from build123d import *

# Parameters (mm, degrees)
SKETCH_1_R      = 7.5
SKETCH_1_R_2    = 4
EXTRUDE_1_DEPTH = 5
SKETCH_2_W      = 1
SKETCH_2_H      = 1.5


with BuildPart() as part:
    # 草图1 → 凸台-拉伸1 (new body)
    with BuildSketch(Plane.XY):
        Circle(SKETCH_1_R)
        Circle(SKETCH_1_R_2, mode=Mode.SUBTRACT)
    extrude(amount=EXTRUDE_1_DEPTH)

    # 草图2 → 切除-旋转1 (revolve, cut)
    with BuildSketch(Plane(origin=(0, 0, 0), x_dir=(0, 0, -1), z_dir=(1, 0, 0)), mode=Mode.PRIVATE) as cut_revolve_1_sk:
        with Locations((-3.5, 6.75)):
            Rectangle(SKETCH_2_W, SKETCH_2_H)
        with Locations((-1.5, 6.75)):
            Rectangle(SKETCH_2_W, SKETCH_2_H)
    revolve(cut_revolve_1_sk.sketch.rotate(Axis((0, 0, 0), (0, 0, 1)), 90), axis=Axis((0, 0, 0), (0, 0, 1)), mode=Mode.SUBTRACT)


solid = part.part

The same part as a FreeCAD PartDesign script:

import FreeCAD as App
import Part
import Sketcher
from FreeCAD import Vector
Q = App.Units.Quantity

doc = App.newDocument("Part")
body = doc.addObject("PartDesign::Body", "Body")

# Sketch on XY plane
sketch1 = doc.addObject("Sketcher::SketchObject", "Sketch")
body.addObject(sketch1)
sketch1.AttachmentSupport = (doc.XY_Plane, [""])
sketch1.MapMode = "FlatFace"
sketch1.addGeometry([
    Part.Circle(Vector(0, 0, 0), Vector(0, 0, 1), 7.5),
    Part.Circle(Vector(0, 0, 0), Vector(0, 0, 1), 4),
], False)
sketch1.addConstraint([
    Sketcher.Constraint("Coincident", 0, 3, -1, 1),
    Sketcher.Constraint("Coincident", 1, 3, -1, 1),
    Sketcher.Constraint("Diameter", 0, Q("15 mm")),
    Sketcher.Constraint("Diameter", 1, Q("8 mm")),
])
pad1 = doc.addObject("PartDesign::Pad", "Pad")
body.addObject(pad1)
pad1.Profile = sketch1
pad1.Length = 5

# Sketch on YZ plane
sketch2 = doc.addObject("Sketcher::SketchObject", "Sketch001")
body.addObject(sketch2)
sketch2.AttachmentSupport = (doc.YZ_Plane, [""])
sketch2.MapMode = "FlatFace"
sketch2.addGeometry([
    Part.LineSegment(Vector(7.5, 4, 0), Vector(6, 4, 0)),  # 0
    Part.LineSegment(Vector(6, 4, 0), Vector(6, 3, 0)),  # 1
    Part.LineSegment(Vector(6, 3, 0), Vector(7.5, 3, 0)),  # 2
    Part.LineSegment(Vector(7.5, 3, 0), Vector(7.5, 4, 0)),  # 3
    Part.LineSegment(Vector(7.5, 2, 0), Vector(6, 2, 0)),  # 4
    Part.LineSegment(Vector(6, 2, 0), Vector(6, 1, 0)),  # 5
    Part.LineSegment(Vector(6, 1, 0), Vector(7.5, 1, 0)),  # 6
    Part.LineSegment(Vector(7.5, 1, 0), Vector(7.5, 2, 0)),  # 7
], False)
sketch2.addConstraint([
    Sketcher.Constraint("Coincident", 0, 2, 1, 1),
    Sketcher.Constraint("Coincident", 1, 2, 2, 1),
    Sketcher.Constraint("Coincident", 2, 2, 3, 1),
    Sketcher.Constraint("Coincident", 3, 2, 0, 1),
    Sketcher.Constraint("Coincident", 4, 2, 5, 1),
    Sketcher.Constraint("Coincident", 5, 2, 6, 1),
    Sketcher.Constraint("Coincident", 6, 2, 7, 1),
    Sketcher.Constraint("Coincident", 7, 2, 4, 1),
    Sketcher.Constraint("Horizontal", 0),
    Sketcher.Constraint("Vertical", 1),
    Sketcher.Constraint("Horizontal", 2),
    Sketcher.Constraint("Vertical", 3),
    Sketcher.Constraint("Horizontal", 4),
    Sketcher.Constraint("Vertical", 5),
    Sketcher.Constraint("Horizontal", 6),
    Sketcher.Constraint("Vertical", 7),
    Sketcher.Constraint("Vertical", 1, 2, 4, 2),
    Sketcher.Constraint("Vertical", 3, 2, 6, 2),
    Sketcher.Constraint("Equal", 3, 5),
    Sketcher.Constraint("DistanceY", 1, 2, 1, 1, Q("1 mm")),
    Sketcher.Constraint("DistanceX", 0, 2, 0, 1, Q("1.5 mm")),
    Sketcher.Constraint("DistanceX", -1, 1, 0, 2, Q("6 mm")),
    Sketcher.Constraint("DistanceY", -1, 1, 0, 2, Q("4 mm")),
    Sketcher.Constraint("DistanceY", -1, 1, 4, 2, Q("2 mm")),
])
groove = doc.addObject("PartDesign::Groove", "Groove")
body.addObject(groove)
groove.Profile = sketch2
groove.ReferenceAxis = (sketch2, ["V_Axis"])
groove.Angle = 360

doc.recompute()
